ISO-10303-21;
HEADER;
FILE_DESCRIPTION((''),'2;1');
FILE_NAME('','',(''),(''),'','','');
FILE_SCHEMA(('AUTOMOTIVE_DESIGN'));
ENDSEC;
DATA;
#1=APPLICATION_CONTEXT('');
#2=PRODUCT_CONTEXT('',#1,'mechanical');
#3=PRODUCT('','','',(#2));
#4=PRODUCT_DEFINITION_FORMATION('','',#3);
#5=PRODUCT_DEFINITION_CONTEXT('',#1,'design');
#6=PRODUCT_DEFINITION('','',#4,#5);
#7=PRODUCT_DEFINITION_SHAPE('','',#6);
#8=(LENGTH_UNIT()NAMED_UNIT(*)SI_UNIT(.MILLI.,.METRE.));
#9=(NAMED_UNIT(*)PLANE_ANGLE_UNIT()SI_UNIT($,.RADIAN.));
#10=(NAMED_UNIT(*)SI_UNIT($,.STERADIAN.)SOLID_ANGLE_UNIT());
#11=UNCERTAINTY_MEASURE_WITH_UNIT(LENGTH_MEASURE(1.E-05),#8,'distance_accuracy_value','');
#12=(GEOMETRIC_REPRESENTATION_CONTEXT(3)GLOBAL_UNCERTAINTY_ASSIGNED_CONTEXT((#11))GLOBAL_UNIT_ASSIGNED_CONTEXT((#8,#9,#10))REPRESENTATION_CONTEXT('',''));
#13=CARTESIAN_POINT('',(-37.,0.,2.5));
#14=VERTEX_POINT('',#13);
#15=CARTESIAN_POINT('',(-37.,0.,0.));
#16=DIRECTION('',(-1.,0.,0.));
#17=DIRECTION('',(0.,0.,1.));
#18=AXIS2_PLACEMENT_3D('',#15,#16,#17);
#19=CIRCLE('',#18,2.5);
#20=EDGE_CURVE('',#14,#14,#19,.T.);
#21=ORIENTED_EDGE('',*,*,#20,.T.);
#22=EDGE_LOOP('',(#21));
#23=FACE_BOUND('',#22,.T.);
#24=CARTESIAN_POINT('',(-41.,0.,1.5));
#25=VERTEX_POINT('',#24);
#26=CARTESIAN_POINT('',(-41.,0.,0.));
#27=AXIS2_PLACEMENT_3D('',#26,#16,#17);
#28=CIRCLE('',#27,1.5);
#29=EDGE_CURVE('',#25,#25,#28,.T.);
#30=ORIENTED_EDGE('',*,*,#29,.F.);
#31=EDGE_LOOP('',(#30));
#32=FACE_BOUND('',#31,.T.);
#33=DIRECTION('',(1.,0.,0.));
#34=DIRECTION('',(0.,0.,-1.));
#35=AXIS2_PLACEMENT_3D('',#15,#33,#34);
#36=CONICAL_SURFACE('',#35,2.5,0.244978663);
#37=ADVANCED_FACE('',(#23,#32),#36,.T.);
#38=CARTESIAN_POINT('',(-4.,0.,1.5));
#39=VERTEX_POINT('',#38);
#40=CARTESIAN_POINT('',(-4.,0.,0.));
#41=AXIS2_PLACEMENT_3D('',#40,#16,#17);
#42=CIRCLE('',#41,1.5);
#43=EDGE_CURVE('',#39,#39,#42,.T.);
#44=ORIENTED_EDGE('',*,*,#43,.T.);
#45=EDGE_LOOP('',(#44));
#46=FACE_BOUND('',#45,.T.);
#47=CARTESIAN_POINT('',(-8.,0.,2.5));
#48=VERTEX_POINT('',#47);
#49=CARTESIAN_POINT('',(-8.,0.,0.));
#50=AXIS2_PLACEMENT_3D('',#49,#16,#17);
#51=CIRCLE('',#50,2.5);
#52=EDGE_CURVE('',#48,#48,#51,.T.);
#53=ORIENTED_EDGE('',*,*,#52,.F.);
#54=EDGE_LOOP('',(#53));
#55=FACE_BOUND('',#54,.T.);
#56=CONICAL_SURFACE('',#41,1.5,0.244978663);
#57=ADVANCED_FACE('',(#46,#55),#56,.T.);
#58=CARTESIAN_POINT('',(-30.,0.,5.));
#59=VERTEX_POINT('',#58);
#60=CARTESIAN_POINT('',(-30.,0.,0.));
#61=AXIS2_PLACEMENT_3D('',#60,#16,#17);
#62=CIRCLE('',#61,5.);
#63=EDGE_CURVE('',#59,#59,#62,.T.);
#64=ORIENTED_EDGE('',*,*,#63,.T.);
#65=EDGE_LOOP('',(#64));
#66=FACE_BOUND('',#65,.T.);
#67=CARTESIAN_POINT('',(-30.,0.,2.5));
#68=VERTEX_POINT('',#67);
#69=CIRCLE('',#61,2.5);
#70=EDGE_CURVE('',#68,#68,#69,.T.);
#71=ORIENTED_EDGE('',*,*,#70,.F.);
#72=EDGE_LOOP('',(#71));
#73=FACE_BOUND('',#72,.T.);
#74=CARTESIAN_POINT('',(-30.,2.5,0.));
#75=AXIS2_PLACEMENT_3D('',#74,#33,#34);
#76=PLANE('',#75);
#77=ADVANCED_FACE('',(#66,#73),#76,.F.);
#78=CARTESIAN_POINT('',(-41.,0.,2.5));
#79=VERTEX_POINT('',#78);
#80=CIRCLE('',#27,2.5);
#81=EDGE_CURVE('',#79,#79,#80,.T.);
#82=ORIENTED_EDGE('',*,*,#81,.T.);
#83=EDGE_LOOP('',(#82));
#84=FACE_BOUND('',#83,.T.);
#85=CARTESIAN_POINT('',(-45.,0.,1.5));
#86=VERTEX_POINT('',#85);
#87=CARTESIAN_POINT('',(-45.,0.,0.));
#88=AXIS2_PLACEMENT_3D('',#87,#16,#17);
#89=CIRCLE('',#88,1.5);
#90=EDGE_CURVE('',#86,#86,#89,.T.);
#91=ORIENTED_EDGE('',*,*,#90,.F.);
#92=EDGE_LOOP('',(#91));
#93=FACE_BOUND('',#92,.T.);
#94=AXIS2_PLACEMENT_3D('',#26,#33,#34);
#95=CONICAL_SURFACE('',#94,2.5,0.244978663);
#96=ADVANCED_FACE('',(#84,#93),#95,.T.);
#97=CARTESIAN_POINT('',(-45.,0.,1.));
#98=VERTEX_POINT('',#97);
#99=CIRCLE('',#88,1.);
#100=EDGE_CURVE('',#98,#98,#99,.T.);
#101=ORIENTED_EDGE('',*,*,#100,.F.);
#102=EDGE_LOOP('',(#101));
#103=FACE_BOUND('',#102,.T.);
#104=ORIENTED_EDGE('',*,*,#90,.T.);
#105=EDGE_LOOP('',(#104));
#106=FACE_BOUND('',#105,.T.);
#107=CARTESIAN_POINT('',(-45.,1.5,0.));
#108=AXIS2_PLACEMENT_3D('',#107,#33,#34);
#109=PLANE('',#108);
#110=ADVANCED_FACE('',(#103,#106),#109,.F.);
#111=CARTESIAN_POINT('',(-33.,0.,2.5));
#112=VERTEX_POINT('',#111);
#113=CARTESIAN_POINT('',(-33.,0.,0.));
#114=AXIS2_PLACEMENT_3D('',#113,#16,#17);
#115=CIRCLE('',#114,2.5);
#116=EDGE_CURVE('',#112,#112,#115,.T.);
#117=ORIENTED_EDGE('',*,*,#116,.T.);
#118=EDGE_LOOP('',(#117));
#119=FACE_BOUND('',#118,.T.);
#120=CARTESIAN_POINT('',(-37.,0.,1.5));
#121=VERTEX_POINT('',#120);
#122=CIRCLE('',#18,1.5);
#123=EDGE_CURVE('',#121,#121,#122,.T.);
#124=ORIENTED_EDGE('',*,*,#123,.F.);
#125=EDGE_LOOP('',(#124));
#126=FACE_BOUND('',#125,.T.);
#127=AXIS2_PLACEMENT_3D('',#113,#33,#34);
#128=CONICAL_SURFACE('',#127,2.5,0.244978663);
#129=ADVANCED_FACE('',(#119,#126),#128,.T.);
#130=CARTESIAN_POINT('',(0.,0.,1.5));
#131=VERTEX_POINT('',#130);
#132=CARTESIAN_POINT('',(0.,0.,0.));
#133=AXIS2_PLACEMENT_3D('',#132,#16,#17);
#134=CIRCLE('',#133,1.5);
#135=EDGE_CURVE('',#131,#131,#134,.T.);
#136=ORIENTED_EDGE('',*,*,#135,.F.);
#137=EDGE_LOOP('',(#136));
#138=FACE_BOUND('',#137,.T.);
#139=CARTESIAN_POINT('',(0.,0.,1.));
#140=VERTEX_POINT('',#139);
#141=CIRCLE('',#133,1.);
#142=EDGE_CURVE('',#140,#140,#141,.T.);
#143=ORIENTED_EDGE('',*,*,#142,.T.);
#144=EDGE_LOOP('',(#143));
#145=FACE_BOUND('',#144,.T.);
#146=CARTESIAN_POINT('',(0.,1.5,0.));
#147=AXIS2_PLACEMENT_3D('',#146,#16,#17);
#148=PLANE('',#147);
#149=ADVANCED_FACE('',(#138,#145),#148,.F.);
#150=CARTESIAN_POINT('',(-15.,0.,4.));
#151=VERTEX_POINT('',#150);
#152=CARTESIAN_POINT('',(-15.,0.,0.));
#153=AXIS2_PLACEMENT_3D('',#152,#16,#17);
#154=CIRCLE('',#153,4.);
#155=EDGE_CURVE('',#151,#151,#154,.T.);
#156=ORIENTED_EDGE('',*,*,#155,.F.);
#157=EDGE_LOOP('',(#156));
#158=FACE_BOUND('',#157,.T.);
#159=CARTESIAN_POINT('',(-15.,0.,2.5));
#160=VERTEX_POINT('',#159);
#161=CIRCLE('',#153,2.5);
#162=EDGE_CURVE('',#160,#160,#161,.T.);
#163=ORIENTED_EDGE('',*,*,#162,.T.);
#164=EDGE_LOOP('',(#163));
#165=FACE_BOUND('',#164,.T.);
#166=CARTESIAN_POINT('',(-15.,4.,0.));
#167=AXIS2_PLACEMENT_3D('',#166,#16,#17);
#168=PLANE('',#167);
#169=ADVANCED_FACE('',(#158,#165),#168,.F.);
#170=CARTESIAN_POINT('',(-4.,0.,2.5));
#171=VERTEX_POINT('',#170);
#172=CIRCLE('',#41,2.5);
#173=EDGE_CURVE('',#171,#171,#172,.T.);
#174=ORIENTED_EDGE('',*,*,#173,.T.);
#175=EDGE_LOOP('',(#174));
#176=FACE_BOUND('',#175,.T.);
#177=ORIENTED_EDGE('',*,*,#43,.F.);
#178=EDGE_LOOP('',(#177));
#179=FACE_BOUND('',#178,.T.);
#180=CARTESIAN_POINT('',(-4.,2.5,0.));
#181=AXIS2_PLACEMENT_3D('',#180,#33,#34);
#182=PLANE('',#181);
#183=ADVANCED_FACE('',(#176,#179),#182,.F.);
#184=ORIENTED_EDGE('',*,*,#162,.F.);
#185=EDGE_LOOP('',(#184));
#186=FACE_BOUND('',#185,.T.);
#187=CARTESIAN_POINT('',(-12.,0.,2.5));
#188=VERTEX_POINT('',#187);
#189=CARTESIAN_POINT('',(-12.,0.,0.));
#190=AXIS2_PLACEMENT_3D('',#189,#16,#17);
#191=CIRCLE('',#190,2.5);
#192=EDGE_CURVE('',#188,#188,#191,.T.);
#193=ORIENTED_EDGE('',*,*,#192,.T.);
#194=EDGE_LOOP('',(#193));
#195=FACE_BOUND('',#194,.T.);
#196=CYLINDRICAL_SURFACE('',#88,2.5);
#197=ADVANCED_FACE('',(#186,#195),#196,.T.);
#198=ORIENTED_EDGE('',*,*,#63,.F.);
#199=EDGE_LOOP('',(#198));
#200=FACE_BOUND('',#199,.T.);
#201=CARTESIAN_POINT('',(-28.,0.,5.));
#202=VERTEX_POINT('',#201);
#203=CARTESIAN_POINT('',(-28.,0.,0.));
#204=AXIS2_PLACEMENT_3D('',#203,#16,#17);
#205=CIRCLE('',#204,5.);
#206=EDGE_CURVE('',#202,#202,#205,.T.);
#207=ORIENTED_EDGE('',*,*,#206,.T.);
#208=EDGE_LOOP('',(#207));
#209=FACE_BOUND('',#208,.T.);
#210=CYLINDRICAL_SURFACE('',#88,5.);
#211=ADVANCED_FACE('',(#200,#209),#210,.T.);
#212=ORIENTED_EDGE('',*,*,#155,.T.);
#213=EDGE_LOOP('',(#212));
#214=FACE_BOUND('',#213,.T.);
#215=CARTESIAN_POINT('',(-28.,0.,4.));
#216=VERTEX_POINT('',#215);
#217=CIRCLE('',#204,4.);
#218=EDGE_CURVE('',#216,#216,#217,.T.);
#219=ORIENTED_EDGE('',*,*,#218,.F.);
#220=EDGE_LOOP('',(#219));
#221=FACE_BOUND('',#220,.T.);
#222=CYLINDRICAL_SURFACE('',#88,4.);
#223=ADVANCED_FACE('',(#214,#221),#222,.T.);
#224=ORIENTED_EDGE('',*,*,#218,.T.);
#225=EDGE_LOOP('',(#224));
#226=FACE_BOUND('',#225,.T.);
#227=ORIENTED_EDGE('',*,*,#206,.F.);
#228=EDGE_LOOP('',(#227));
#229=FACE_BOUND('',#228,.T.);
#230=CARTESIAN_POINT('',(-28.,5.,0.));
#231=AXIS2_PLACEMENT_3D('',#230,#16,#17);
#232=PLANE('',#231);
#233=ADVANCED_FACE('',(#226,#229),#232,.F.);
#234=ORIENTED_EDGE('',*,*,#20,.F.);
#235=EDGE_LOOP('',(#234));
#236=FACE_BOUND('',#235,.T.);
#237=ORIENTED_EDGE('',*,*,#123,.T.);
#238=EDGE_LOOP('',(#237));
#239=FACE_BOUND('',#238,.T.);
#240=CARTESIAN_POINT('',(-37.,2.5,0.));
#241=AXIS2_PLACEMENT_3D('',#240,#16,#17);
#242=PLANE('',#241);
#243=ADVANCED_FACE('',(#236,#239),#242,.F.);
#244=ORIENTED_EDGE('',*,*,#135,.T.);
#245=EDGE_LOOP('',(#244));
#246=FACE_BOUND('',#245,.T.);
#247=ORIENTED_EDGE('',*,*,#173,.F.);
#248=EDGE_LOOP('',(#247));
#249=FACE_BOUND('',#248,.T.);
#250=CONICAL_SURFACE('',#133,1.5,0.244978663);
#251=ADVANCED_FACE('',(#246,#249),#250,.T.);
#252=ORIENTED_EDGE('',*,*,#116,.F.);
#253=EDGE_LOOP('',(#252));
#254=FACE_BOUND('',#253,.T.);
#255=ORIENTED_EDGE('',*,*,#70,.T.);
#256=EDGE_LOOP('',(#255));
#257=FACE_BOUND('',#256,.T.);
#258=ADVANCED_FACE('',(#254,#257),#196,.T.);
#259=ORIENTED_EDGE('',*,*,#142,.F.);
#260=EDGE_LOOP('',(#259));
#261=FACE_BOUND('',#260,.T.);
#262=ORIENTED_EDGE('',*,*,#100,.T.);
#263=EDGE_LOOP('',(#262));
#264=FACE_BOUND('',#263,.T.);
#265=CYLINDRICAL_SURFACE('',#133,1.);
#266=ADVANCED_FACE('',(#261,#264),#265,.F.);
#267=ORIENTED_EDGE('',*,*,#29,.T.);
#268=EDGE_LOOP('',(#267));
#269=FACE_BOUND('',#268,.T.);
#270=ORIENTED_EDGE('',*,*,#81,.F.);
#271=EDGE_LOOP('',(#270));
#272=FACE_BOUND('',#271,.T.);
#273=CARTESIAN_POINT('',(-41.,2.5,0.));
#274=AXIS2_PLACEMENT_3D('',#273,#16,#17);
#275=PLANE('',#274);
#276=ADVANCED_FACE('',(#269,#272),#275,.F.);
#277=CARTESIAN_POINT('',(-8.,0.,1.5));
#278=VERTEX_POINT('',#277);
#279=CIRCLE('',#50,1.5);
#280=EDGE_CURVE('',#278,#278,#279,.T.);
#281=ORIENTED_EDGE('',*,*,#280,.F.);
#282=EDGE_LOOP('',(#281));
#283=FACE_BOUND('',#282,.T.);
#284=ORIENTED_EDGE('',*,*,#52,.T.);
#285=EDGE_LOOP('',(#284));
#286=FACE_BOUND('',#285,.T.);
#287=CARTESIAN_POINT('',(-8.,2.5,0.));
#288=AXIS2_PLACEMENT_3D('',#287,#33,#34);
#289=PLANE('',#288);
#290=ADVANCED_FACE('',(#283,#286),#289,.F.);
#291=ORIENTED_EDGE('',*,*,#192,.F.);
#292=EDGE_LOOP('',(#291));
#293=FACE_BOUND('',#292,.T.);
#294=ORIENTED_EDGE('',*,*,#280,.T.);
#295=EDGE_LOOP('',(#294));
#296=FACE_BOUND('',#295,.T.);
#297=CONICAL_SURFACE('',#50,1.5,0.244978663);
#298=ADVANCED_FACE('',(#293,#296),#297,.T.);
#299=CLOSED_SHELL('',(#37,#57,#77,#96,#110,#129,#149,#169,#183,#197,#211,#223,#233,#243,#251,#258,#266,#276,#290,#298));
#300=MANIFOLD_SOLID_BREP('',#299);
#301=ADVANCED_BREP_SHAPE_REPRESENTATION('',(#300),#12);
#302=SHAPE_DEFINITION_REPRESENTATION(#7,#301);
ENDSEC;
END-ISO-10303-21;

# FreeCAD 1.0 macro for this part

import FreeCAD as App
import Part
import Sketcher

V = App.Vector

doc = App.newDocument("Part")
params = doc.addObject("Spreadsheet::Sheet", "Params")
for row, (alias, value) in enumerate([
    ("sketch1_width", "3 mm"),
    ("sketch1_width2", "45 mm"),
    ("sketch1_width3", "13 mm"),
    ("sketch1_width4", "2 mm"),
    ("sketch1_height", "1 mm"),
    ("revolution_angle", "360 deg"),
    ("sketch2_diameter", "2 mm"),
], start=1):
    params.set(f"A{row}", alias)
    params.set(f"B{row}", "=" + value)
    params.setAlias(f"B{row}", alias)

body = doc.addObject("PartDesign::Body", "Body")

sketch1 = body.newObject("Sketcher::SketchObject", "Sketch")
sketch1.AttachmentSupport = (doc.getObject("XY_Plane"), [""])
sketch1.MapMode = "FlatFace"
sketch1.addGeometry([
    Part.LineSegment(V(-30, 2.5, 0), V(-33, 2.5, 0)),
    Part.LineSegment(V(-33, 2.5, 0), V(-37, 1.5, 0)),
    Part.LineSegment(V(-37, 1.5, 0), V(-37, 2.5, 0)),
    Part.LineSegment(V(-37, 2.5, 0), V(-41, 1.5, 0)),
    Part.LineSegment(V(-41, 1.5, 0), V(-41, 2.5, 0)),
    Part.LineSegment(V(-41, 2.5, 0), V(-45, 1.5, 0)),
    Part.LineSegment(V(-45, 1.5, 0), V(-45, 0, 0)),
    Part.LineSegment(V(-45, 0, 0), V(0, 0, 0)),
    Part.LineSegment(V(0, 0, 0), V(0, 1.5, 0)),
    Part.LineSegment(V(0, 1.5, 0), V(-4, 2.5, 0)),
    Part.LineSegment(V(-4, 2.5, 0), V(-4, 1.5, 0)),
    Part.LineSegment(V(-4, 1.5, 0), V(-8, 2.5, 0)),
    Part.LineSegment(V(-8, 2.5, 0), V(-8, 1.5, 0)),
    Part.LineSegment(V(-8, 1.5, 0), V(-12, 2.5, 0)),
    Part.LineSegment(V(-12, 2.5, 0), V(-15, 2.5, 0)),
    Part.LineSegment(V(-15, 2.5, 0), V(-15, 4, 0)),
    Part.LineSegment(V(-15, 4, 0), V(-28, 4, 0)),
    Part.LineSegment(V(-28, 4, 0), V(-28, 5, 0)),
    Part.LineSegment(V(-28, 5, 0), V(-30, 5, 0)),
    Part.LineSegment(V(-30, 5, 0), V(-30, 2.5, 0)),
], False)
sketch1.addConstraint([
    Sketcher.Constraint("Coincident", 0, 2, 1, 1),
    Sketcher.Constraint("Coincident", 1, 2, 2, 1),
    Sketcher.Constraint("Coincident", 2, 2, 3, 1),
    Sketcher.Constraint("Coincident", 3, 2, 4, 1),
    Sketcher.Constraint("Coincident", 4, 2, 5, 1),
    Sketcher.Constraint("Coincident", 5, 2, 6, 1),
    Sketcher.Constraint("Coincident", 6, 2, 7, 1),
    Sketcher.Constraint("Coincident", 7, 2, 8, 1),
    Sketcher.Constraint("Coincident", 8, 2, 9, 1),
    Sketcher.Constraint("Coincident", 9, 2, 10, 1),
    Sketcher.Constraint("Coincident", 10, 2, 11, 1),
    Sketcher.Constraint("Coincident", 11, 2, 12, 1),
    Sketcher.Constraint("Coincident", 12, 2, 13, 1),
    Sketcher.Constraint("Coincident", 13, 2, 14, 1),
    Sketcher.Constraint("Coincident", 14, 2, 15, 1),
    Sketcher.Constraint("Coincident", 15, 2, 16, 1),
    Sketcher.Constraint("Coincident", 16, 2, 17, 1),
    Sketcher.Constraint("Coincident", 17, 2, 18, 1),
    Sketcher.Constraint("Coincident", 18, 2, 19, 1),
    Sketcher.Constraint("Coincident", 19, 2, 0, 1),
    Sketcher.Constraint("Horizontal", 0),
    Sketcher.Constraint("Vertical", 2),
    Sketcher.Constraint("Vertical", 4),
    Sketcher.Constraint("Vertical", 6),
    Sketcher.Constraint("Horizontal", 7),
    Sketcher.Constraint("Vertical", 8),
    Sketcher.Constraint("Vertical", 10),
    Sketcher.Constraint("Vertical", 12),
    Sketcher.Constraint("Horizontal", 14),
    Sketcher.Constraint("Vertical", 15),
    Sketcher.Constraint("Horizontal", 16),
    Sketcher.Constraint("Vertical", 17),
    Sketcher.Constraint("Horizontal", 18),
    Sketcher.Constraint("Vertical", 19),
    Sketcher.Constraint("Coincident", 7, 2, -1, 1),
    Sketcher.Constraint("Parallel", 1, 3),
    Sketcher.Constraint("Parallel", 3, 5),
    Sketcher.Constraint("Parallel", 9, 11),
    Sketcher.Constraint("Parallel", 11, 13),
    Sketcher.Constraint("Horizontal", 0, 2, 2, 2),
    Sketcher.Constraint("Horizontal", 1, 2, 3, 2),
    Sketcher.Constraint("Horizontal", 2, 2, 4, 2),
    Sketcher.Constraint("Horizontal", 3, 2, 5, 2),
    Sketcher.Constraint("Horizontal", 5, 2, 8, 2),
    Sketcher.Constraint("Horizontal", 4, 2, 9, 2),
    Sketcher.Constraint("Horizontal", 8, 2, 10, 2),
    Sketcher.Constraint("Horizontal", 9, 2, 11, 2),
    Sketcher.Constraint("Horizontal", 10, 2, 12, 2),
    Sketcher.Constraint("Horizontal", 11, 2, 13, 2),
    Sketcher.Constraint("Equal", 0, 14),
    Sketcher.Constraint("Equal", 8, 15),
    Sketcher.Constraint("Equal", 12, 17),
    Sketcher.Constraint("Equal", 5, 9),
    Sketcher.Constraint("DistanceX", 0, 2, 0, 1, 3.0),
    Sketcher.Constraint("DistanceX", 7, 1, 7, 2, 45.0),
    Sketcher.Constraint("DistanceX", 16, 2, 16, 1, 13.0),
    Sketcher.Constraint("DistanceX", 18, 2, 18, 1, 2.0),
    Sketcher.Constraint("DistanceY", 2, 1, 2, 2, 1.0),
    Sketcher.Constraint("DistanceY", 6, 2, 6, 1, 1.5),
])
sketch1.setExpression("Constraints[53]", "Params.sketch1_width")
sketch1.setExpression("Constraints[54]", "Params.sketch1_width2")
sketch1.setExpression("Constraints[55]", "Params.sketch1_width3")
sketch1.setExpression("Constraints[56]", "Params.sketch1_width4")
sketch1.setExpression("Constraints[57]", "Params.sketch1_height")
revolution = body.newObject("PartDesign::Revolution", "Revolution")
revolution.Profile = sketch1
revolution.ReferenceAxis = (sketch1, ["H_Axis"])
revolution.setExpression("Angle", "Params.revolution_angle")

sketch2 = body.newObject("Sketcher::SketchObject", "Sketch001")
sketch2.AttachmentSupport = (doc.getObject("YZ_Plane"), [""])
sketch2.MapMode = "FlatFace"
sketch2.AttachmentOffset = App.Placement(V(0, 0, -45), App.Rotation())
sketch2.addGeometry(Part.Circle(V(0, 0, 0), V(0, 0, 1), 1), False)
sketch2.addConstraint([
    Sketcher.Constraint("Coincident", 0, 3, -1, 1),
    Sketcher.Constraint("Diameter", 0, 2.0),
])
sketch2.setExpression("Constraints[1]", "Params.sketch2_diameter")
pocket1 = body.newObject("PartDesign::Pocket", "Pocket")
pocket1.Profile = sketch2
pocket1.Type = "ThroughAll"
pocket1.Reversed = True

doc.recompute()
